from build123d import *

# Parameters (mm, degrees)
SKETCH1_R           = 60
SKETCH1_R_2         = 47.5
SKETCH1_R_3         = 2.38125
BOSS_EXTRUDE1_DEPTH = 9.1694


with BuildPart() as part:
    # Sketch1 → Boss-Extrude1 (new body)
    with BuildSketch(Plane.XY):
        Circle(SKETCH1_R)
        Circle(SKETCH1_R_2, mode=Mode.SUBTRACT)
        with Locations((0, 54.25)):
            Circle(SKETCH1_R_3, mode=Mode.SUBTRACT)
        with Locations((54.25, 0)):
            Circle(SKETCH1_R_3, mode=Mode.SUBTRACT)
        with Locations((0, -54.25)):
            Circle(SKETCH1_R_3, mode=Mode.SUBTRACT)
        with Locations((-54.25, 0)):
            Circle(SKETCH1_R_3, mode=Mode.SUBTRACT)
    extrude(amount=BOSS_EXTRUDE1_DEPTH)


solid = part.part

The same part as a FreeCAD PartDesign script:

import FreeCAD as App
import Part
import Sketcher
Q = App.Units.Quantity

doc = App.newDocument("Part")
body = doc.addObject("PartDesign::Body", "Body")

sketch1 = body.newObject("Sketcher::SketchObject", "Sketch")
sketch1.AttachmentSupport = (doc.getObject("XY_Plane"), [""])
sketch1.MapMode = "FlatFace"
sketch1.addGeometry(Part.Circle(App.Vector(0, 0, 0), App.Vector(0, 0, 1), 60), False)
sketch1.addGeometry(Part.Circle(App.Vector(0, -54.2, 0), App.Vector(0, 0, 1), 2.4), False)
sketch1.addGeometry(Part.Circle(App.Vector(-54.2, 0, 0), App.Vector(0, 0, 1), 2.4), False)
sketch1.addGeometry(Part.Circle(App.Vector(0, 0, 0), App.Vector(0, 0, 1), 47.5), False)
sketch1.addGeometry(Part.Circle(App.Vector(54.2, 0, 0), App.Vector(0, 0, 1), 2.4), False)
sketch1.addGeometry(Part.Circle(App.Vector(0, 54.2, 0), App.Vector(0, 0, 1), 2.4), False)
sketch1.addConstraint(Sketcher.Constraint("Coincident", 0, 3, -1, 1))
sketch1.addConstraint(Sketcher.Constraint("Coincident", 3, 3, -1, 1))
sketch1.addConstraint(Sketcher.Constraint("Equal", 1, 2))
sketch1.addConstraint(Sketcher.Constraint("Equal", 2, 4))
sketch1.addConstraint(Sketcher.Constraint("Equal", 4, 5))
sketch1.addConstraint(Sketcher.Constraint("Symmetric", 2, 3, 4, 3, -1, 1))
sketch1.addConstraint(Sketcher.Constraint("Symmetric", 1, 3, 5, 3, -1, 1))
sketch1.addConstraint(Sketcher.Constraint("PointOnObject", 1, 3, -2))
sketch1.addConstraint(Sketcher.Constraint("PointOnObject", 2, 3, -1))
sketch1.addConstraint(Sketcher.Constraint("Diameter", 0, Q("120 mm")))
sketch1.addConstraint(Sketcher.Constraint("Diameter", 3, Q("95 mm")))
sketch1.addConstraint(Sketcher.Constraint("Diameter", 1, Q("4.7625 mm")))
sketch1.addConstraint(Sketcher.Constraint("DistanceX", 2, 3, 4, 3, Q("108.5 mm")))
sketch1.addConstraint(Sketcher.Constraint("DistanceY", 1, 3, 5, 3, Q("108.5 mm")))
pad1 = body.newObject("PartDesign::Pad", "Pad")
pad1.Profile = sketch1
pad1.Length = 9.1694

doc.recompute()
